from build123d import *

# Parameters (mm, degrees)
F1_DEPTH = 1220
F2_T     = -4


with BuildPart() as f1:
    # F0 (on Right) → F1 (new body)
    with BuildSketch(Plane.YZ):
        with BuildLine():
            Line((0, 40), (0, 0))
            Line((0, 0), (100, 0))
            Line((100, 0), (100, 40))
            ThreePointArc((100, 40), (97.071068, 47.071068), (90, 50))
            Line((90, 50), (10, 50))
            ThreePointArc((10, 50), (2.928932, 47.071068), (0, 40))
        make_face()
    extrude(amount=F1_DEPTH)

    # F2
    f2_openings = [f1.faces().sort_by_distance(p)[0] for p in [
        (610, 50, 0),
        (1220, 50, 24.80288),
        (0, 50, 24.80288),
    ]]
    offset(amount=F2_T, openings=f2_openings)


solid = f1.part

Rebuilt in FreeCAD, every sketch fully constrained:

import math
import FreeCAD as App
import Part
import Sketcher
from FreeCAD import Vector


def faces_at(feature, points):
    """Names of the faces that lie closest to the given points."""
    faces = feature.Shape.Faces
    near = lambda p: min(range(len(faces)), key=lambda i: faces[i].distToShape(Part.Vertex(*p))[0])
    return sorted({f"Face{near(p) + 1}" for p in points})

doc = App.newDocument("Part")
body = doc.addObject("PartDesign::Body", "Body")

# Sketch on YZ plane
sketch1 = body.newObject("Sketcher::SketchObject", "Sketch")
sketch1.AttachmentSupport = (doc.getObject("YZ_Plane"), [""])
sketch1.MapMode = "FlatFace"
sketch1.addGeometry([
    Part.LineSegment(Vector(0, 40, 0), Vector(0, 0, 0)),  # 0
    Part.LineSegment(Vector(0, 0, 0), Vector(100, 0, 0)),  # 1
    Part.LineSegment(Vector(100, 0, 0), Vector(100, 40, 0)),  # 2
    Part.ArcOfCircle(Part.Circle(Vector(90.000001, 40.000001, 0), Vector(0, 0, 1), 9.999999), math.radians(-0.000004), math.radians(90.000004)),  # 3
    Part.LineSegment(Vector(90, 50, 0), Vector(10, 50, 0)),  # 4
    Part.ArcOfCircle(Part.Circle(Vector(9.999999, 40.000001, 0), Vector(0, 0, 1), 9.999999), math.radians(89.999996), math.radians(180.000004)),  # 5
], False)
sketch1.addConstraint([
    Sketcher.Constraint("Coincident", 0, 2, 1, 1),
    Sketcher.Constraint("Coincident", 1, 2, 2, 1),
    Sketcher.Constraint("Tangent", 2, 2, 3, 1),
    Sketcher.Constraint("Tangent", 3, 2, 4, 1),
    Sketcher.Constraint("Tangent", 4, 2, 5, 1),
    Sketcher.Constraint("Tangent", 5, 2, 0, 1),
    Sketcher.Constraint("Vertical", 0),
    Sketcher.Constraint("Horizontal", 1),
    Sketcher.Constraint("Vertical", 2),
    Sketcher.Constraint("Horizontal", 4),
    Sketcher.Constraint("Coincident", 0, 2, -1, 1),
    Sketcher.Constraint("Equal", 3, 5),
    Sketcher.Constraint("Radius", 3, 9.999999),
    Sketcher.Constraint("DistanceX", 1, 1, 1, 2, 100.0),
    Sketcher.Constraint("DistanceY", 0, 2, 0, 1, 40.0),
])
pad1 = body.newObject("PartDesign::Pad", "Pad")
pad1.Profile = sketch1
pad1.Length = 1220
doc.recompute()

thickness = body.newObject("PartDesign::Thickness", "Thickness")
thickness.Base = (pad1, faces_at(pad1, [(610, 50, 0), (1220, 50, 25), (0, 50, 25)]))
thickness.Value = 4
thickness.Reversed = True
thickness.Join = "Arc"

doc.recompute()
